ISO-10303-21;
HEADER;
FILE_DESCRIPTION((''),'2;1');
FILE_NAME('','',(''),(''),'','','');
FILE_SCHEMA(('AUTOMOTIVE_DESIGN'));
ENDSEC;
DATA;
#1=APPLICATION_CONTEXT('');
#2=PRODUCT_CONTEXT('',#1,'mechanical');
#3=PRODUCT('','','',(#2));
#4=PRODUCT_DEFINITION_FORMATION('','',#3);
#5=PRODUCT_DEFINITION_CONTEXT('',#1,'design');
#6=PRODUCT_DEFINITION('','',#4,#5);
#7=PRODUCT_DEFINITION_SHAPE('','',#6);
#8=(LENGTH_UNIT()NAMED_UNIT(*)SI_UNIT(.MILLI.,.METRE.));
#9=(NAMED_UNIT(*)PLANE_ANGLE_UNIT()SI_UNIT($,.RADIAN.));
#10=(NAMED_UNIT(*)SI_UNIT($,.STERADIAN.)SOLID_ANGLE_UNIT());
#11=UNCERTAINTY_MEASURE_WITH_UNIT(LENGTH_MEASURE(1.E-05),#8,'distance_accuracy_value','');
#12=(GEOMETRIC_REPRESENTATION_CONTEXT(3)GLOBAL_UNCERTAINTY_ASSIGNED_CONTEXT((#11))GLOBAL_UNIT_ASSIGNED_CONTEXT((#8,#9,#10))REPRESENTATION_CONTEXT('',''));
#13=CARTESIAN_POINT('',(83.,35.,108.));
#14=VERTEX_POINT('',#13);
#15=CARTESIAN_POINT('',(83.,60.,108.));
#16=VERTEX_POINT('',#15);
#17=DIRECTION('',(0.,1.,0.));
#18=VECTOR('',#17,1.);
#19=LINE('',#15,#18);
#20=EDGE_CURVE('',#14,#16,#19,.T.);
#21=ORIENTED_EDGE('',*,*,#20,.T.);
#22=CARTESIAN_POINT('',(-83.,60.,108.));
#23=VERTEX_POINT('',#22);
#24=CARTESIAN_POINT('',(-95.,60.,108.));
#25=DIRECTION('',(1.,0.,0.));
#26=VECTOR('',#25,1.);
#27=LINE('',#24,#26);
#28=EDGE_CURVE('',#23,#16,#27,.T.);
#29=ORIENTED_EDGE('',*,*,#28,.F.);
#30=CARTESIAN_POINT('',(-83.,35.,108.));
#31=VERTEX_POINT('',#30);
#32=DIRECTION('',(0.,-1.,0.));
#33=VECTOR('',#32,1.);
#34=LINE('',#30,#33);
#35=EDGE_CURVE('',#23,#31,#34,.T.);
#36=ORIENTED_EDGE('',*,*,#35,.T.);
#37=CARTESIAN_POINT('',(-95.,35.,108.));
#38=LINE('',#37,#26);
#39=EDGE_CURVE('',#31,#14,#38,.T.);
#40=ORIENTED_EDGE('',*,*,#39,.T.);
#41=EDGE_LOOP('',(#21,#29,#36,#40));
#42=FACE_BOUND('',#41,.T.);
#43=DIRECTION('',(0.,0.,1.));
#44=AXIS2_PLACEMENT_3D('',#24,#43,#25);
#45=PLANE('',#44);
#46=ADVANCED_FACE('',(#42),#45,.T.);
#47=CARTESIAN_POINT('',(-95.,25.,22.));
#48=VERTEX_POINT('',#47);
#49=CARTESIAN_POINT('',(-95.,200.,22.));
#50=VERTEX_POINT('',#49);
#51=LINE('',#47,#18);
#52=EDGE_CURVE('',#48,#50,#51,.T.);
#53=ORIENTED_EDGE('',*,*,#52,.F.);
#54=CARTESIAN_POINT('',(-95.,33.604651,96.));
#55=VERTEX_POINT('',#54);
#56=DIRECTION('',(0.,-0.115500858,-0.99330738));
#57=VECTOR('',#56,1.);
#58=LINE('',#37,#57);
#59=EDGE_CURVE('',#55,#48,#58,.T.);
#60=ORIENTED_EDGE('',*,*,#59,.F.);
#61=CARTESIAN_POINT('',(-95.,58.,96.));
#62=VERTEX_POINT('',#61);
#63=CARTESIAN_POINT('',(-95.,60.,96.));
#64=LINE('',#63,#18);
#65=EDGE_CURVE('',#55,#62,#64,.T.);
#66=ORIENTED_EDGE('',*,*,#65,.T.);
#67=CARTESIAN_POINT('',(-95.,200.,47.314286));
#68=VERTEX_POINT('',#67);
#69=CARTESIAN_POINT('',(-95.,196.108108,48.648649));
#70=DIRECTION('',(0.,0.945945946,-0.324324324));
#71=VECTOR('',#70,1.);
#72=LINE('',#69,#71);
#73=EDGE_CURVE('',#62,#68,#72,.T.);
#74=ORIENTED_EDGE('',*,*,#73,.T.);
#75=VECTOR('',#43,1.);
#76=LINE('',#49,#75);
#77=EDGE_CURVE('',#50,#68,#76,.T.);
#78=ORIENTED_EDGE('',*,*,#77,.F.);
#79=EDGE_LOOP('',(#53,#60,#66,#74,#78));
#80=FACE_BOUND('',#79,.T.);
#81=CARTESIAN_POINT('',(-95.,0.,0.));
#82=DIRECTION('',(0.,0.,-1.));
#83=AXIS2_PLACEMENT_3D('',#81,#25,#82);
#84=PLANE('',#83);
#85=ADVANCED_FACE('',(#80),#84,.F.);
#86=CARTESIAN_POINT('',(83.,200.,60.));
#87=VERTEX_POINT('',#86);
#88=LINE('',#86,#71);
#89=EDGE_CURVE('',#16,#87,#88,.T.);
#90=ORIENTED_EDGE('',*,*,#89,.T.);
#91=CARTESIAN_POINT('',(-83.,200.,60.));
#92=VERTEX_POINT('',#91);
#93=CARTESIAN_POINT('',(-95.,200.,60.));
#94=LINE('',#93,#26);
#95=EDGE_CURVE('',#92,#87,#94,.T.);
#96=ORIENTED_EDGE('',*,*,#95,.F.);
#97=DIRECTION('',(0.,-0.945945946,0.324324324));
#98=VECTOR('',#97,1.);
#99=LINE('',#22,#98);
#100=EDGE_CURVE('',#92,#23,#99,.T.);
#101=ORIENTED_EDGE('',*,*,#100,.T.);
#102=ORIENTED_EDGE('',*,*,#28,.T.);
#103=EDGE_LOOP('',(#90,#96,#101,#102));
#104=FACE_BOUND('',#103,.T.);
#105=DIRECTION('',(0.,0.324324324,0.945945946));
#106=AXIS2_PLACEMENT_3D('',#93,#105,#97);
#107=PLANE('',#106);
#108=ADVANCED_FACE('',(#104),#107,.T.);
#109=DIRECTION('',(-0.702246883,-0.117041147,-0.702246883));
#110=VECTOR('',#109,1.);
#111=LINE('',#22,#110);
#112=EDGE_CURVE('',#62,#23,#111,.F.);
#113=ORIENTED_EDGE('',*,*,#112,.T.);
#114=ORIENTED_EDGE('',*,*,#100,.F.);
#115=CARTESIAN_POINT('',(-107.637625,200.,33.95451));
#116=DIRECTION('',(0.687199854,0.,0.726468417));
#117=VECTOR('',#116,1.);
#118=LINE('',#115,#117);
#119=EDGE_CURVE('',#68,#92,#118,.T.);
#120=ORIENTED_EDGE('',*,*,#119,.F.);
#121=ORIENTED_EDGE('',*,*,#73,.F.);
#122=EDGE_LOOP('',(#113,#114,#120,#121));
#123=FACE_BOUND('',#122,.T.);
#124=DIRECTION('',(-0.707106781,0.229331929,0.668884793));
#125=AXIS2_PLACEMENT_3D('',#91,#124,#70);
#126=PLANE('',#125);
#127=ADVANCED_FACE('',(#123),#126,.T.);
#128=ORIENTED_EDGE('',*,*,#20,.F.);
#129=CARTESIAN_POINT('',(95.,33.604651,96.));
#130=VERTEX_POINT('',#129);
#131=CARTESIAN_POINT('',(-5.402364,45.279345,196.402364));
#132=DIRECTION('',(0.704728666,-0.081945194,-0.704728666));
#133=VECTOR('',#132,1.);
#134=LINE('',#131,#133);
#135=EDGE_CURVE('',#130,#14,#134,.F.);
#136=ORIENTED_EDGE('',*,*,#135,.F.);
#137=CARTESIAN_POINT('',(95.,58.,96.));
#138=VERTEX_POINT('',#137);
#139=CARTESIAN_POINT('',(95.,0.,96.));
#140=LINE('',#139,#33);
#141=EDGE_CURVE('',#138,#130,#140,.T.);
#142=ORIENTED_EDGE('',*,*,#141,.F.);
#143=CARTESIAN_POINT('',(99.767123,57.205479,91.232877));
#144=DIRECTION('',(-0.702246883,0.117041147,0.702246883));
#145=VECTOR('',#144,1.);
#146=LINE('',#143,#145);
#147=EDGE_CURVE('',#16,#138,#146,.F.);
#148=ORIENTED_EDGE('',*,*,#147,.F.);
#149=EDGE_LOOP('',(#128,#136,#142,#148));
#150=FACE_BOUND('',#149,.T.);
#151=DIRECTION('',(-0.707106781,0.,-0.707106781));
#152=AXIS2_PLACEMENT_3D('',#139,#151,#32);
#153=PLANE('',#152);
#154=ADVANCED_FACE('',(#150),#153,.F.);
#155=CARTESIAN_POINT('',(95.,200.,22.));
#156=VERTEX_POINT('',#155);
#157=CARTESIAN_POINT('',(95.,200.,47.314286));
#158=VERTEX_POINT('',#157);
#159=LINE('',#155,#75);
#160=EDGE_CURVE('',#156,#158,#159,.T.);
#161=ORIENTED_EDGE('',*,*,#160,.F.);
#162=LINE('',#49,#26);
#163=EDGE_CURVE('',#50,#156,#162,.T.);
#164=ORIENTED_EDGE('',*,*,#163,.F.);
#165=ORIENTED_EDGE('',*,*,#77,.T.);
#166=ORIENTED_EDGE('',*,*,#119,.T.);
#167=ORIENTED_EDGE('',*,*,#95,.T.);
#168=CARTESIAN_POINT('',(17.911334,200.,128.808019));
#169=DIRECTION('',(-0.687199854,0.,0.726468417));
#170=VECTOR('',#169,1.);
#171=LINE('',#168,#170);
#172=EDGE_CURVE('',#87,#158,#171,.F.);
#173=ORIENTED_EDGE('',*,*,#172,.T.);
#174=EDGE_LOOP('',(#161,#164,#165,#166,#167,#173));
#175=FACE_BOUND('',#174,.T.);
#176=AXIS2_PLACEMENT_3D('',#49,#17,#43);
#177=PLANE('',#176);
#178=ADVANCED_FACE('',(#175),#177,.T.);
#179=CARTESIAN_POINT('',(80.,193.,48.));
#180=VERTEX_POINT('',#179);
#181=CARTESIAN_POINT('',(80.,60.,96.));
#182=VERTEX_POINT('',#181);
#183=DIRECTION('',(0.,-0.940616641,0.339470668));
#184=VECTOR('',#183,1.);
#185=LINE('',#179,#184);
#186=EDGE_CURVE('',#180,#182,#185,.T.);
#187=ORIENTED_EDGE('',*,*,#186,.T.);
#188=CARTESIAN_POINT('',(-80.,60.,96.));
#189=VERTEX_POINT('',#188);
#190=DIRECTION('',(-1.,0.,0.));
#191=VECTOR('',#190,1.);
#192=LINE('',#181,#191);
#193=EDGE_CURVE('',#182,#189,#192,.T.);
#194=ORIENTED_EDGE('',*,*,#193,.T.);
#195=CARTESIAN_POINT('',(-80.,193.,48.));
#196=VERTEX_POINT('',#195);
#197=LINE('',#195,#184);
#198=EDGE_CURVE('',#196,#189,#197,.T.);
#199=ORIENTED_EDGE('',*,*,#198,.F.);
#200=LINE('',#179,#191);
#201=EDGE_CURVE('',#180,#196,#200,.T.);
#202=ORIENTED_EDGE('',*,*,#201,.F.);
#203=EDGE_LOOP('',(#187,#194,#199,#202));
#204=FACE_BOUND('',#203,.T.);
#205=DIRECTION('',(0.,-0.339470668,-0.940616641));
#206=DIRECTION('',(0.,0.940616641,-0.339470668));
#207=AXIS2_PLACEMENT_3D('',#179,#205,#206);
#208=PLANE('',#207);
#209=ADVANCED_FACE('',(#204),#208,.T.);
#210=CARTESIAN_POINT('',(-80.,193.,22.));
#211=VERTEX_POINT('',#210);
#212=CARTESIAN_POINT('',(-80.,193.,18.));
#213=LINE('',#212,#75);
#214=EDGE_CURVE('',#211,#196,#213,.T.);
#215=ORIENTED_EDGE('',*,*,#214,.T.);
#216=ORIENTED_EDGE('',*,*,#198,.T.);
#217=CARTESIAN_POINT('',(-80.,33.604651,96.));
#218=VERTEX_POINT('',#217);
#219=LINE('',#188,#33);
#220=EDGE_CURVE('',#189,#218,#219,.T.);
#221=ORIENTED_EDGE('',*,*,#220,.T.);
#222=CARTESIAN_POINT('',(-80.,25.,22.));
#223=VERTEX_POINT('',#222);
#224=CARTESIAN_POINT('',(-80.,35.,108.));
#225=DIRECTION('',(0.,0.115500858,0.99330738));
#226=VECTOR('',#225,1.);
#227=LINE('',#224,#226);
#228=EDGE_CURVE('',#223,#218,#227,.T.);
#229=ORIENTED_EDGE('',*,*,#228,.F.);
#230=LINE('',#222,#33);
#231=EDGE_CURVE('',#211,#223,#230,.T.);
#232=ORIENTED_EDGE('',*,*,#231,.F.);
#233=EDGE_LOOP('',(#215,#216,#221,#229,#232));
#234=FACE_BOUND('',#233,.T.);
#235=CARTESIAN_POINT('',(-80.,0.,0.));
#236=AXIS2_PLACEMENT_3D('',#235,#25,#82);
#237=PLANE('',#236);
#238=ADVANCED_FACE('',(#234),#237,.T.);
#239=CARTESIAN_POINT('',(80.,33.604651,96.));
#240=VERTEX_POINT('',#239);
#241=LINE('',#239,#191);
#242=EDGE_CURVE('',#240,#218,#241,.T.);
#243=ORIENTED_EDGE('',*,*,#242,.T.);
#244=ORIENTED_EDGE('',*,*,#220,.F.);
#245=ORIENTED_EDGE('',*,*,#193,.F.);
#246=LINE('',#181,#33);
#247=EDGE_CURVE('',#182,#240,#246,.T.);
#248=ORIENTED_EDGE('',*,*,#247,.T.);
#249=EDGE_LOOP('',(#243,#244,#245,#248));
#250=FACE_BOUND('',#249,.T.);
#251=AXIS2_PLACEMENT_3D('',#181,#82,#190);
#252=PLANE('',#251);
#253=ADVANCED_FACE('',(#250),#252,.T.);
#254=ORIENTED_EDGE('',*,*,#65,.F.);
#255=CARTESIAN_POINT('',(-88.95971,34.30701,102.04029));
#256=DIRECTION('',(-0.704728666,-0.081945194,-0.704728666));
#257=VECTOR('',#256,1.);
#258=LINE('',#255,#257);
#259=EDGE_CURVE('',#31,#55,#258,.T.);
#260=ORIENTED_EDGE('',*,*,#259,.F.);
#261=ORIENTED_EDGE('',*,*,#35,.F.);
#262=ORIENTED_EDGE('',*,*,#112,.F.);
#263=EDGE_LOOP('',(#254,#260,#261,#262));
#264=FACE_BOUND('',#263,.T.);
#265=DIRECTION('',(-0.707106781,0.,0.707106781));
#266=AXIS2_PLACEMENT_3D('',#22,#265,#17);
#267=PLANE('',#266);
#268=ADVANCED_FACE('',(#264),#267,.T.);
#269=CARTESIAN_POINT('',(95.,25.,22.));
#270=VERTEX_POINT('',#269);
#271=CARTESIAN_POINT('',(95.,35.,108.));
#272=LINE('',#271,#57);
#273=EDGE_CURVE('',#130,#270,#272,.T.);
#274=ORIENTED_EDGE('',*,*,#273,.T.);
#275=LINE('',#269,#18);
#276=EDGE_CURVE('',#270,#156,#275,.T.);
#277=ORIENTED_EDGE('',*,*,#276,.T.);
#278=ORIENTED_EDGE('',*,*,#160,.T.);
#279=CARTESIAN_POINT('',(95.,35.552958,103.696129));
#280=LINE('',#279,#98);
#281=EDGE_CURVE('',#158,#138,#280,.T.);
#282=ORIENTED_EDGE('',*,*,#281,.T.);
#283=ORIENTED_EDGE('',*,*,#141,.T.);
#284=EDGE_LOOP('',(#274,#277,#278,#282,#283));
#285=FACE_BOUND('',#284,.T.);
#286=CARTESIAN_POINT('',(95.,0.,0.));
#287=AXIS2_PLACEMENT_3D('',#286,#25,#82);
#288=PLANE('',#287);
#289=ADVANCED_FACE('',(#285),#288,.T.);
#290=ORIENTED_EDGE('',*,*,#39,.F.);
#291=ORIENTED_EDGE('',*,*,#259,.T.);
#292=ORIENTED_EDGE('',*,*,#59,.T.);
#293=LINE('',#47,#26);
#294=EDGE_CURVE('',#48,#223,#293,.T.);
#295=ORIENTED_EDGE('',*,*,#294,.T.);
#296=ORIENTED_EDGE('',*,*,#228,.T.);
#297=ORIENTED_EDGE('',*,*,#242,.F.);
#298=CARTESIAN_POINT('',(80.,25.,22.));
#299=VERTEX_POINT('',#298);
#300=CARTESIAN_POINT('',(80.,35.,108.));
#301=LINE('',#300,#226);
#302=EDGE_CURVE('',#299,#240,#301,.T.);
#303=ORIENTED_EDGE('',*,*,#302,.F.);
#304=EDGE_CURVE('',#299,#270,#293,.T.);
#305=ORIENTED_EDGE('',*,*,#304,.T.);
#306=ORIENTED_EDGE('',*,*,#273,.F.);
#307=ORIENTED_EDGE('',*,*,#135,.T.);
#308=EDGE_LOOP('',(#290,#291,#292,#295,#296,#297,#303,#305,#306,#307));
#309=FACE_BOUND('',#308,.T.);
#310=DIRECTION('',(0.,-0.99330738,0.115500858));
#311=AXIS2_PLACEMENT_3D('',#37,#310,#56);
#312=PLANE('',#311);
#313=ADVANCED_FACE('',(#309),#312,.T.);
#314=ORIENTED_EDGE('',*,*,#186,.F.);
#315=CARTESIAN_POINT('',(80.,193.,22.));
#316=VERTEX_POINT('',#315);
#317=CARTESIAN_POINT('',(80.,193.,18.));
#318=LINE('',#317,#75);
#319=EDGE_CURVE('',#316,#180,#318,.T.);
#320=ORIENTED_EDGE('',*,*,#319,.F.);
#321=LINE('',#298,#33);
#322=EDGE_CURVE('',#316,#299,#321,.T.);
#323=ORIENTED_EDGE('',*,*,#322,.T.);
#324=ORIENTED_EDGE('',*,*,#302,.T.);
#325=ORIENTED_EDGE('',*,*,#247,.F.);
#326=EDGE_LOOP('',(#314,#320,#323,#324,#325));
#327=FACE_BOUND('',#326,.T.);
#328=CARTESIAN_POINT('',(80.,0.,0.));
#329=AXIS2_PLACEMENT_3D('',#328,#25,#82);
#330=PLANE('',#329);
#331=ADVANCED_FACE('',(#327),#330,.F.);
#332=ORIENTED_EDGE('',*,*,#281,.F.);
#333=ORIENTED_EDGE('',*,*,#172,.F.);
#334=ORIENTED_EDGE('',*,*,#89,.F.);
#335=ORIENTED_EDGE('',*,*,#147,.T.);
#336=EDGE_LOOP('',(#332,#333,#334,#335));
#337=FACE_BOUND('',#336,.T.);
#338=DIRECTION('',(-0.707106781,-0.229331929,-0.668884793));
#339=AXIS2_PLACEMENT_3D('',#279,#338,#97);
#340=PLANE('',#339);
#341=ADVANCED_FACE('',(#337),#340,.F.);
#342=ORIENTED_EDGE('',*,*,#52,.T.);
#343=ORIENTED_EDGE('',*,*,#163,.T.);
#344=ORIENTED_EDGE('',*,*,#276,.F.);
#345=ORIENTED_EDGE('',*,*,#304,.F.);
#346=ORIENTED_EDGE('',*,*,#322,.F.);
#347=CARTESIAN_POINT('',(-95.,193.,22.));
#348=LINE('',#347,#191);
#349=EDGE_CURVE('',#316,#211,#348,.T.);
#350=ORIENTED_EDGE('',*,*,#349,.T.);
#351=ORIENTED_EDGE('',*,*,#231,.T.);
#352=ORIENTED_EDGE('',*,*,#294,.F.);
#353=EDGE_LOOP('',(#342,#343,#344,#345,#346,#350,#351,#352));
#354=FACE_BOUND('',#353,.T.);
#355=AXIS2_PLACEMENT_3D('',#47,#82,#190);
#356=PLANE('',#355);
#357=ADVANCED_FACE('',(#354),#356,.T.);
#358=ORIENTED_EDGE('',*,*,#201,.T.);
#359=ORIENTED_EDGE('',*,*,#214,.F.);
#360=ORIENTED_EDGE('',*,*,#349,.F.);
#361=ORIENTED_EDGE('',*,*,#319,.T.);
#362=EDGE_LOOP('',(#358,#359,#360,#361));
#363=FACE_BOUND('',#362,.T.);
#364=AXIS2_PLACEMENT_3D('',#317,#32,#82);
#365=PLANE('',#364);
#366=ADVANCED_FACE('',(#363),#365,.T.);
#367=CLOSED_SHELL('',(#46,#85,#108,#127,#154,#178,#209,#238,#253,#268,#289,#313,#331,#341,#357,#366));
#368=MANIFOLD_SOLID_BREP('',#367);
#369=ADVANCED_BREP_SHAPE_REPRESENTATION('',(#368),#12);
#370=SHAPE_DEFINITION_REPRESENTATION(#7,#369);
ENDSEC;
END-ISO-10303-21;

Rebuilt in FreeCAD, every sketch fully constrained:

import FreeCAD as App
import Part
import Sketcher

V = App.Vector
Q = App.Units.Quantity


def edges_at(feature, points):
    """Names of the edges that pass closest to the given points."""
    edges = feature.Shape.Edges
    near = lambda p: min(range(len(edges)), key=lambda i: edges[i].distToShape(Part.Vertex(*p))[0])
    return sorted({f"Edge{near(p) + 1}" for p in points})

doc = App.newDocument("Part")
params = doc.addObject("Spreadsheet::Sheet", "Params")
for row, (alias, value) in enumerate([
    ("sketch1_width", "175 mm"),
    ("sketch1_width2", "25 mm"),
    ("sketch1_height", "38 mm"),
    ("sketch1_length", "148 mm"),
    ("pad1_length", "95 mm"),
    ("pad1_length2", "95 mm"),
    ("sketch2_width", "170 mm"),
    ("sketch2_height", "30 mm"),
    ("pocket1_length", "80 mm"),
    ("pocket1_length2", "80 mm"),
    ("chamfer_size", "12 mm"),
], start=1):
    params.set(f"A{row}", alias)
    params.set(f"B{row}", "=" + value)
    params.setAlias(f"B{row}", alias)

body = doc.addObject("PartDesign::Body", "Body")

sketch1 = doc.addObject("Sketcher::SketchObject", "Sketch")
body.addObject(sketch1)
sketch1.AttachmentSupport = (doc.YZ_Plane, [""])
sketch1.MapMode = "FlatFace"
sketch1.addGeometry([
    Part.LineSegment(V(25, 22, 0), V(200, 22, 0)),
    Part.LineSegment(V(200, 22, 0), V(200, 60, 0)),
    Part.LineSegment(V(200, 60, 0), V(60, 108, 0)),
    Part.LineSegment(V(60, 108, 0), V(35, 108, 0)),
    Part.LineSegment(V(35, 108, 0), V(25, 22, 0)),
], False)
sketch1.addConstraint([
    Sketcher.Constraint("Coincident", 0, 2, 1, 1),
    Sketcher.Constraint("Coincident", 1, 2, 2, 1),
    Sketcher.Constraint("Coincident", 2, 2, 3, 1),
    Sketcher.Constraint("Coincident", 3, 2, 4, 1),
    Sketcher.Constraint("Coincident", 4, 2, 0, 1),
    Sketcher.Constraint("Horizontal", 0),
    Sketcher.Constraint("Vertical", 1),
    Sketcher.Constraint("Horizontal", 3),
    Sketcher.Constraint("DistanceX", 0, 1, 0, 2, Q("175 mm")),
    Sketcher.Constraint("DistanceX", 3, 2, 3, 1, Q("25 mm")),
    Sketcher.Constraint("DistanceY", 1, 1, 1, 2, Q("38 mm")),
    Sketcher.Constraint("Distance", 2, Q("148 mm")),
    Sketcher.Constraint("DistanceX", -1, 1, 0, 2, Q("200 mm")),
    Sketcher.Constraint("DistanceY", -1, 1, 0, 2, Q("22 mm")),
    Sketcher.Constraint("DistanceX", -1, 1, 2, 2, Q("60 mm")),
])
sketch1.setExpression("Constraints[8]", "Params.sketch1_width")
sketch1.setExpression("Constraints[9]", "Params.sketch1_width2")
sketch1.setExpression("Constraints[10]", "Params.sketch1_height")
sketch1.setExpression("Constraints[11]", "Params.sketch1_length")
pad1 = doc.addObject("PartDesign::Pad", "Pad")
body.addObject(pad1)
pad1.Profile = sketch1
pad1.Type = "TwoLengths"
pad1.setExpression("Length", "Params.pad1_length")
pad1.setExpression("Length2", "Params.pad1_length2")

sketch2 = doc.addObject("Sketcher::SketchObject", "Sketch001")
body.addObject(sketch2)
sketch2.AttachmentSupport = (doc.YZ_Plane, [""])
sketch2.MapMode = "FlatFace"
sketch2.addGeometry([
    Part.LineSegment(V(23, 18, 0), V(193, 18, 0)),
    Part.LineSegment(V(193, 18, 0), V(193, 48, 0)),
    Part.LineSegment(V(193, 48, 0), V(60, 96, 0)),
    Part.LineSegment(V(60, 96, 0), V(34, 96, 0)),
    Part.LineSegment(V(34, 96, 0), V(23, 18, 0)),
], False)
sketch2.addConstraint([
    Sketcher.Constraint("Coincident", 0, 2, 1, 1),
    Sketcher.Constraint("Coincident", 1, 2, 2, 1),
    Sketcher.Constraint("Coincident", 2, 2, 3, 1),
    Sketcher.Constraint("Coincident", 3, 2, 4, 1),
    Sketcher.Constraint("Coincident", 4, 2, 0, 1),
    Sketcher.Constraint("Horizontal", 0),
    Sketcher.Constraint("Vertical", 1),
    Sketcher.Constraint("Horizontal", 3),
    Sketcher.Constraint("DistanceX", 0, 1, 0, 2, Q("170 mm")),
    Sketcher.Constraint("DistanceY", 1, 1, 1, 2, Q("30 mm")),
    Sketcher.Constraint("DistanceX", -1, 1, 0, 2, Q("193 mm")),
    Sketcher.Constraint("DistanceY", -1, 1, 0, 2, Q("18 mm")),
    Sketcher.Constraint("DistanceX", -1, 1, 2, 2, Q("60 mm")),
    Sketcher.Constraint("DistanceY", -1, 1, 2, 2, Q("96 mm")),
    Sketcher.Constraint("DistanceX", 3, 2, 3, 1, Q("26.395349 mm")),
])
sketch2.setExpression("Constraints[8]", "Params.sketch2_width")
sketch2.setExpression("Constraints[9]", "Params.sketch2_height")
pocket1 = doc.addObject("PartDesign::Pocket", "Pocket")
body.addObject(pocket1)
pocket1.Profile = sketch2
pocket1.Type = "TwoLengths"
pocket1.setExpression("Length", "Params.pocket1_length")
pocket1.setExpression("Length2", "Params.pocket1_length2")
pocket1.Reversed = True
doc.recompute()

chamfer = doc.addObject("PartDesign::Chamfer", "Chamfer")
body.addObject(chamfer)
chamfer.Base = (pocket1, edges_at(pocket1, [
    (95, 130, 84),
    (95, 47.5, 108),
    (-95, 130, 84),
    (-95, 47.5, 108),
]))
chamfer.setExpression("Size", "Params.chamfer_size")

doc.recompute()
